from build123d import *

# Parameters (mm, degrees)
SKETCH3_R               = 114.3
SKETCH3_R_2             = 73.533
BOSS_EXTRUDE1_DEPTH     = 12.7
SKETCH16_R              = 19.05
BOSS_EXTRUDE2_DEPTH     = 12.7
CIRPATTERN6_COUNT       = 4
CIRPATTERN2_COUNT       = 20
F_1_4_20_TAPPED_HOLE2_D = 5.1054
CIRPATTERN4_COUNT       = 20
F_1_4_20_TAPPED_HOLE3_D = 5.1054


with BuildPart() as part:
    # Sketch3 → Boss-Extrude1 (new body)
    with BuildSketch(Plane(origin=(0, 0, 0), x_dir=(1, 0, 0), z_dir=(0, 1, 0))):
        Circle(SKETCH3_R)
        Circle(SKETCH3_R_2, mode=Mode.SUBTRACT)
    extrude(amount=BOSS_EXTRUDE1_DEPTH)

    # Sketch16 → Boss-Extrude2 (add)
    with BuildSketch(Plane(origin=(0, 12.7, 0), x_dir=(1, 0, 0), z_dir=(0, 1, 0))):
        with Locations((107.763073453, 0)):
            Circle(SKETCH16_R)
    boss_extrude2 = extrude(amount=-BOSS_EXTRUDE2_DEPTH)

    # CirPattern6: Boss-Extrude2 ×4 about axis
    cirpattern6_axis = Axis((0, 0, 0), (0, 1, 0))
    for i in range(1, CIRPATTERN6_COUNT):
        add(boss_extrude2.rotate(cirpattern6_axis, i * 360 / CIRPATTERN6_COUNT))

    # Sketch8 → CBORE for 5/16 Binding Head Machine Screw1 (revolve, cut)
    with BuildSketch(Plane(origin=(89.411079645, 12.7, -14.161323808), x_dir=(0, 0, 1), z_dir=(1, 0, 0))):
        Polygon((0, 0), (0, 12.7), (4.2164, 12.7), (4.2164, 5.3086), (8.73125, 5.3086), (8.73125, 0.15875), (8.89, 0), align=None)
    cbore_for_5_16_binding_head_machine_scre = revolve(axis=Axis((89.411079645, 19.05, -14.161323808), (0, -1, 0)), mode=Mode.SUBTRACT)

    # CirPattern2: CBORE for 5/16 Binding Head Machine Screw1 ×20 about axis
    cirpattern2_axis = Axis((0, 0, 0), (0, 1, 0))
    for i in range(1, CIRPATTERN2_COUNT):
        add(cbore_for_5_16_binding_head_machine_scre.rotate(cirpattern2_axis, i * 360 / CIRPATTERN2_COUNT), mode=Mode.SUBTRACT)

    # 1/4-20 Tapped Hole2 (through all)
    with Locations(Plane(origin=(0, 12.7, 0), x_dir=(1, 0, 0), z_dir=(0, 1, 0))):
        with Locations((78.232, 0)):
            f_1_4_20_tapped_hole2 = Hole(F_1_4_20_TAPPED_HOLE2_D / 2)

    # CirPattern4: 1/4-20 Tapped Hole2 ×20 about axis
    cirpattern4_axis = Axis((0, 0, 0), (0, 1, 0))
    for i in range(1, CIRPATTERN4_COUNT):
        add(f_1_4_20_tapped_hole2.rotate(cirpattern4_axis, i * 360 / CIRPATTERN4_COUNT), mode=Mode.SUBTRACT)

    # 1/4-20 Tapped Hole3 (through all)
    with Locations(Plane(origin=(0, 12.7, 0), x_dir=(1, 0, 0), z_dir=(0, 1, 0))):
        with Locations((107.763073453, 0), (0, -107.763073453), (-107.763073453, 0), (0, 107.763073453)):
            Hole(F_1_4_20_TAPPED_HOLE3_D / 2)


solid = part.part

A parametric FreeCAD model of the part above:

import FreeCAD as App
import Part
import Sketcher
Q = App.Units.Quantity

doc = App.newDocument("Part")
params = doc.addObject("Spreadsheet::Sheet", "Params")
for row, (alias, value) in enumerate([
    ("sketch1_diameter", "9 in"),
    ("sketch1_diameter2", "5.79 in"),
    ("pad1_length", "0.5 in"),
    ("sketch2_diameter", "1.5 in"),
    ("pad2_length", "0.5 in"),
    ("sketch3_width", "0.5 in"),
    ("sketch3_height", "0.35 in"),
    ("sketch3_width2", "0.291 in"),
    ("sketch3_height2", "0.166 in"),
    ("groove_angle", "360 deg"),
    ("sketch4_diameter", "0.201 in"),
    ("hole_diameter", "0.201 in"),
    ("sketch5_diameter", "0.201 in"),
    ("hole2_diameter", "0.201 in"),
], start=1):
    params.set(f"A{row}", alias)
    params.set(f"B{row}", "=" + value)
    params.setAlias(f"B{row}", alias)

body = doc.addObject("PartDesign::Body", "Body")

sketch1 = body.newObject("Sketcher::SketchObject", "Sketch")
sketch1.AttachmentSupport = (doc.getObject("XZ_Plane"), [""])
sketch1.MapMode = "FlatFace"
sketch1.addGeometry(Part.Circle(App.Vector(0, 0, 0), App.Vector(0, 0, 1), 114), False)
sketch1.addGeometry(Part.Circle(App.Vector(0, 0, 0), App.Vector(0, 0, 1), 74), False)
sketch1.addConstraint(Sketcher.Constraint("Coincident", 0, 3, -1, 1))
sketch1.addConstraint(Sketcher.Constraint("Coincident", 1, 3, -1, 1))
sketch1.addConstraint(Sketcher.Constraint("Diameter", 0, Q("9 in")))
sketch1.addConstraint(Sketcher.Constraint("Diameter", 1, Q("5.79 in")))
sketch1.setExpression("Constraints[2]", "Params.sketch1_diameter")
sketch1.setExpression("Constraints[3]", "Params.sketch1_diameter2")
pad1 = body.newObject("PartDesign::Pad", "Pad")
pad1.Profile = sketch1
pad1.setExpression("Length", "Params.pad1_length")
pad1.Reversed = True

sketch2 = body.newObject("Sketcher::SketchObject", "Sketch001")
sketch2.AttachmentSupport = (doc.getObject("XZ_Plane"), [""])
sketch2.MapMode = "FlatFace"
sketch2.AttachmentOffset = App.Placement(App.Vector(0, 0, -0.5 * 25.4), App.Rotation())
sketch2.addGeometry(Part.Circle(App.Vector(108, 0, 0), App.Vector(0, 0, 1), 19), False)
sketch2.addConstraint(Sketcher.Constraint("PointOnObject", 0, 3, -1))
sketch2.addConstraint(Sketcher.Constraint("Diameter", 0, Q("1.5 in")))
sketch2.addConstraint(Sketcher.Constraint("DistanceX", -1, 1, 0, 3, 107.763073))
sketch2.setExpression("Constraints[1]", "Params.sketch2_diameter")
pad2 = body.newObject("PartDesign::Pad", "Pad001")
pad2.Profile = sketch2
pad2.setExpression("Length", "Params.pad2_length")
doc.recompute()

polarpattern = body.newObject("PartDesign::PolarPattern", "PolarPattern")
polarpattern.Originals = [pad2]
polarpattern.Axis = (doc.getObject("Y_Axis"), [""])
polarpattern.Angle = 360
polarpattern.Occurrences = 4
body.Tip = polarpattern

sketch3 = body.newObject("Sketcher::SketchObject", "Sketch002")
sketch3.AttachmentSupport = (doc.getObject("YZ_Plane"), [""])
sketch3.MapMode = "FlatFace"
sketch3.AttachmentOffset = App.Placement(App.Vector(0, 0, 89.41108), App.Rotation())
sketch3.addGeometry(Part.LineSegment(App.Vector(0, -14.16, 0), App.Vector(12.7, -14.16, 0)), False)
sketch3.addGeometry(Part.LineSegment(App.Vector(12.7, -14.16, 0), App.Vector(12.7, -5.27, 0)), False)
sketch3.addGeometry(Part.LineSegment(App.Vector(12.7, -5.27, 0), App.Vector(12.54, -5.43, 0)), False)
sketch3.addGeometry(Part.LineSegment(App.Vector(12.54, -5.43, 0), App.Vector(7.39, -5.43, 0)), False)
sketch3.addGeometry(Part.LineSegment(App.Vector(7.39, -5.43, 0), App.Vector(7.39, -9.94, 0)), False)
sketch3.addGeometry(Part.LineSegment(App.Vector(7.39, -9.94, 0), App.Vector(0, -9.94, 0)), False)
sketch3.addGeometry(Part.LineSegment(App.Vector(0, -9.94, 0), App.Vector(0, -14.16, 0)), False)
sketch3.addGeometry(Part.LineSegment(App.Vector(12.7, -14.16, 0), App.Vector(0, -14.16, 0)), True)
sketch3.addConstraint(Sketcher.Constraint("Coincident", 0, 2, 1, 1))
sketch3.addConstraint(Sketcher.Constraint("Coincident", 1, 2, 2, 1))
sketch3.addConstraint(Sketcher.Constraint("Coincident", 2, 2, 3, 1))
sketch3.addConstraint(Sketcher.Constraint("Coincident", 3, 2, 4, 1))
sketch3.addConstraint(Sketcher.Constraint("Coincident", 4, 2, 5, 1))
sketch3.addConstraint(Sketcher.Constraint("Coincident", 5, 2, 6, 1))
sketch3.addConstraint(Sketcher.Constraint("Coincident", 6, 2, 0, 1))
sketch3.addConstraint(Sketcher.Constraint("Horizontal", 0))
sketch3.addConstraint(Sketcher.Constraint("Vertical", 1))
sketch3.addConstraint(Sketcher.Constraint("Horizontal", 3))
sketch3.addConstraint(Sketcher.Constraint("Vertical", 4))
sketch3.addConstraint(Sketcher.Constraint("Horizontal", 5))
sketch3.addConstraint(Sketcher.Constraint("Vertical", 6))
sketch3.addConstraint(Sketcher.Constraint("Horizontal", 7))
sketch3.addConstraint(Sketcher.Constraint("Coincident", 7, 1, 0, 2))
sketch3.addConstraint(Sketcher.Constraint("PointOnObject", 5, 2, -2))
sketch3.addConstraint(Sketcher.Constraint("PointOnObject", 7, 2, -2))
sketch3.addConstraint(Sketcher.Constraint("DistanceX", 0, 1, 0, 2, Q("0.5 in")))
sketch3.addConstraint(Sketcher.Constraint("Angle", 2, Q("-135 deg")))
sketch3.addConstraint(Sketcher.Constraint("DistanceY", 1, 1, 1, 2, Q("0.35 in")))
sketch3.addConstraint(Sketcher.Constraint("DistanceX", 5, 2, 5, 1, Q("0.291 in")))
sketch3.addConstraint(Sketcher.Constraint("DistanceY", 6, 2, 6, 1, Q("0.166 in")))
sketch3.addConstraint(Sketcher.Constraint("DistanceY", 0, 2, 2, 2, Q("0.34375 in")))
sketch3.addConstraint(Sketcher.Constraint("DistanceY", 0, 2, -1, 1, 14.161324))
sketch3.setExpression("Constraints[17]", "Params.sketch3_width")
sketch3.setExpression("Constraints[19]", "Params.sketch3_height")
sketch3.setExpression("Constraints[20]", "Params.sketch3_width2")
sketch3.setExpression("Constraints[21]", "Params.sketch3_height2")
groove = body.newObject("PartDesign::Groove", "Groove")
groove.Profile = sketch3
groove.ReferenceAxis = (sketch3, ["Axis0"])
groove.setExpression("Angle", "Params.groove_angle")
doc.recompute()

polarpattern2 = body.newObject("PartDesign::PolarPattern", "PolarPattern001")
polarpattern2.Originals = [groove]
polarpattern2.Axis = (doc.getObject("Y_Axis"), [""])
polarpattern2.Angle = 360
polarpattern2.Occurrences = 20
body.Tip = polarpattern2

sketch4 = body.newObject("Sketcher::SketchObject", "Sketch003")
sketch4.AttachmentSupport = (doc.getObject("XZ_Plane"), [""])
sketch4.MapMode = "FlatFace"
sketch4.AttachmentOffset = App.Placement(App.Vector(0, 0, -0.5 * 25.4), App.Rotation())
sketch4.addGeometry(Part.Circle(App.Vector(78.2, 0, 0), App.Vector(0, 0, 1), 2.6), False)
sketch4.addConstraint(Sketcher.Constraint("PointOnObject", 0, 3, -1))
sketch4.addConstraint(Sketcher.Constraint("Diameter", 0, Q("0.201 in")))
sketch4.addConstraint(Sketcher.Constraint("DistanceX", -1, 1, 0, 3, Q("3.08 in")))
sketch4.setExpression("Constraints[1]", "Params.sketch4_diameter")
doc.recompute()
hole = body.newObject("PartDesign::Hole", "Hole")
hole.Profile = sketch4
hole.ThreadType = "None"
hole.setExpression("Diameter", "Params.hole_diameter")
hole.DepthType = "ThroughAll"
hole.Reversed = True
doc.recompute()

polarpattern3 = body.newObject("PartDesign::PolarPattern", "PolarPattern002")
polarpattern3.Originals = [hole]
polarpattern3.Axis = (doc.getObject("Y_Axis"), [""])
polarpattern3.Angle = 360
polarpattern3.Occurrences = 20
body.Tip = polarpattern3

sketch5 = body.newObject("Sketcher::SketchObject", "Sketch004")
sketch5.AttachmentSupport = (doc.getObject("XZ_Plane"), [""])
sketch5.MapMode = "FlatFace"
sketch5.AttachmentOffset = App.Placement(App.Vector(0, 0, -0.5 * 25.4), App.Rotation())
sketch5.addGeometry(Part.Circle(App.Vector(107.8, 0, 0), App.Vector(0, 0, 1), 2.6), False)
sketch5.addGeometry(Part.Circle(App.Vector(0, 107.8, 0), App.Vector(0, 0, 1), 2.6), False)
sketch5.addGeometry(Part.Circle(App.Vector(-107.8, 0, 0), App.Vector(0, 0, 1), 2.6), False)
sketch5.addGeometry(Part.Circle(App.Vector(0, -107.8, 0), App.Vector(0, 0, 1), 2.6), False)
sketch5.addConstraint(Sketcher.Constraint("Equal", 0, 1))
sketch5.addConstraint(Sketcher.Constraint("Equal", 1, 2))
sketch5.addConstraint(Sketcher.Constraint("Equal", 2, 3))
sketch5.addConstraint(Sketcher.Constraint("Symmetric", 0, 3, 2, 3, -1, 1))
sketch5.addConstraint(Sketcher.Constraint("Symmetric", 1, 3, 3, 3, -1, 1))
sketch5.addConstraint(Sketcher.Constraint("PointOnObject", 0, 3, -1))
sketch5.addConstraint(Sketcher.Constraint("PointOnObject", 1, 3, -2))
sketch5.addConstraint(Sketcher.Constraint("Diameter", 0, Q("0.201 in")))
sketch5.addConstraint(Sketcher.Constraint("DistanceX", -1, 1, 0, 3, 107.763073))
sketch5.addConstraint(Sketcher.Constraint("DistanceY", -1, 1, 1, 3, 107.763073))
sketch5.setExpression("Constraints[7]", "Params.sketch5_diameter")
doc.recompute()
hole2 = body.newObject("PartDesign::Hole", "Hole001")
hole2.Profile = sketch5
hole2.ThreadType = "None"
hole2.setExpression("Diameter", "Params.hole2_diameter")
hole2.DepthType = "ThroughAll"
hole2.Reversed = True

doc.recompute()
